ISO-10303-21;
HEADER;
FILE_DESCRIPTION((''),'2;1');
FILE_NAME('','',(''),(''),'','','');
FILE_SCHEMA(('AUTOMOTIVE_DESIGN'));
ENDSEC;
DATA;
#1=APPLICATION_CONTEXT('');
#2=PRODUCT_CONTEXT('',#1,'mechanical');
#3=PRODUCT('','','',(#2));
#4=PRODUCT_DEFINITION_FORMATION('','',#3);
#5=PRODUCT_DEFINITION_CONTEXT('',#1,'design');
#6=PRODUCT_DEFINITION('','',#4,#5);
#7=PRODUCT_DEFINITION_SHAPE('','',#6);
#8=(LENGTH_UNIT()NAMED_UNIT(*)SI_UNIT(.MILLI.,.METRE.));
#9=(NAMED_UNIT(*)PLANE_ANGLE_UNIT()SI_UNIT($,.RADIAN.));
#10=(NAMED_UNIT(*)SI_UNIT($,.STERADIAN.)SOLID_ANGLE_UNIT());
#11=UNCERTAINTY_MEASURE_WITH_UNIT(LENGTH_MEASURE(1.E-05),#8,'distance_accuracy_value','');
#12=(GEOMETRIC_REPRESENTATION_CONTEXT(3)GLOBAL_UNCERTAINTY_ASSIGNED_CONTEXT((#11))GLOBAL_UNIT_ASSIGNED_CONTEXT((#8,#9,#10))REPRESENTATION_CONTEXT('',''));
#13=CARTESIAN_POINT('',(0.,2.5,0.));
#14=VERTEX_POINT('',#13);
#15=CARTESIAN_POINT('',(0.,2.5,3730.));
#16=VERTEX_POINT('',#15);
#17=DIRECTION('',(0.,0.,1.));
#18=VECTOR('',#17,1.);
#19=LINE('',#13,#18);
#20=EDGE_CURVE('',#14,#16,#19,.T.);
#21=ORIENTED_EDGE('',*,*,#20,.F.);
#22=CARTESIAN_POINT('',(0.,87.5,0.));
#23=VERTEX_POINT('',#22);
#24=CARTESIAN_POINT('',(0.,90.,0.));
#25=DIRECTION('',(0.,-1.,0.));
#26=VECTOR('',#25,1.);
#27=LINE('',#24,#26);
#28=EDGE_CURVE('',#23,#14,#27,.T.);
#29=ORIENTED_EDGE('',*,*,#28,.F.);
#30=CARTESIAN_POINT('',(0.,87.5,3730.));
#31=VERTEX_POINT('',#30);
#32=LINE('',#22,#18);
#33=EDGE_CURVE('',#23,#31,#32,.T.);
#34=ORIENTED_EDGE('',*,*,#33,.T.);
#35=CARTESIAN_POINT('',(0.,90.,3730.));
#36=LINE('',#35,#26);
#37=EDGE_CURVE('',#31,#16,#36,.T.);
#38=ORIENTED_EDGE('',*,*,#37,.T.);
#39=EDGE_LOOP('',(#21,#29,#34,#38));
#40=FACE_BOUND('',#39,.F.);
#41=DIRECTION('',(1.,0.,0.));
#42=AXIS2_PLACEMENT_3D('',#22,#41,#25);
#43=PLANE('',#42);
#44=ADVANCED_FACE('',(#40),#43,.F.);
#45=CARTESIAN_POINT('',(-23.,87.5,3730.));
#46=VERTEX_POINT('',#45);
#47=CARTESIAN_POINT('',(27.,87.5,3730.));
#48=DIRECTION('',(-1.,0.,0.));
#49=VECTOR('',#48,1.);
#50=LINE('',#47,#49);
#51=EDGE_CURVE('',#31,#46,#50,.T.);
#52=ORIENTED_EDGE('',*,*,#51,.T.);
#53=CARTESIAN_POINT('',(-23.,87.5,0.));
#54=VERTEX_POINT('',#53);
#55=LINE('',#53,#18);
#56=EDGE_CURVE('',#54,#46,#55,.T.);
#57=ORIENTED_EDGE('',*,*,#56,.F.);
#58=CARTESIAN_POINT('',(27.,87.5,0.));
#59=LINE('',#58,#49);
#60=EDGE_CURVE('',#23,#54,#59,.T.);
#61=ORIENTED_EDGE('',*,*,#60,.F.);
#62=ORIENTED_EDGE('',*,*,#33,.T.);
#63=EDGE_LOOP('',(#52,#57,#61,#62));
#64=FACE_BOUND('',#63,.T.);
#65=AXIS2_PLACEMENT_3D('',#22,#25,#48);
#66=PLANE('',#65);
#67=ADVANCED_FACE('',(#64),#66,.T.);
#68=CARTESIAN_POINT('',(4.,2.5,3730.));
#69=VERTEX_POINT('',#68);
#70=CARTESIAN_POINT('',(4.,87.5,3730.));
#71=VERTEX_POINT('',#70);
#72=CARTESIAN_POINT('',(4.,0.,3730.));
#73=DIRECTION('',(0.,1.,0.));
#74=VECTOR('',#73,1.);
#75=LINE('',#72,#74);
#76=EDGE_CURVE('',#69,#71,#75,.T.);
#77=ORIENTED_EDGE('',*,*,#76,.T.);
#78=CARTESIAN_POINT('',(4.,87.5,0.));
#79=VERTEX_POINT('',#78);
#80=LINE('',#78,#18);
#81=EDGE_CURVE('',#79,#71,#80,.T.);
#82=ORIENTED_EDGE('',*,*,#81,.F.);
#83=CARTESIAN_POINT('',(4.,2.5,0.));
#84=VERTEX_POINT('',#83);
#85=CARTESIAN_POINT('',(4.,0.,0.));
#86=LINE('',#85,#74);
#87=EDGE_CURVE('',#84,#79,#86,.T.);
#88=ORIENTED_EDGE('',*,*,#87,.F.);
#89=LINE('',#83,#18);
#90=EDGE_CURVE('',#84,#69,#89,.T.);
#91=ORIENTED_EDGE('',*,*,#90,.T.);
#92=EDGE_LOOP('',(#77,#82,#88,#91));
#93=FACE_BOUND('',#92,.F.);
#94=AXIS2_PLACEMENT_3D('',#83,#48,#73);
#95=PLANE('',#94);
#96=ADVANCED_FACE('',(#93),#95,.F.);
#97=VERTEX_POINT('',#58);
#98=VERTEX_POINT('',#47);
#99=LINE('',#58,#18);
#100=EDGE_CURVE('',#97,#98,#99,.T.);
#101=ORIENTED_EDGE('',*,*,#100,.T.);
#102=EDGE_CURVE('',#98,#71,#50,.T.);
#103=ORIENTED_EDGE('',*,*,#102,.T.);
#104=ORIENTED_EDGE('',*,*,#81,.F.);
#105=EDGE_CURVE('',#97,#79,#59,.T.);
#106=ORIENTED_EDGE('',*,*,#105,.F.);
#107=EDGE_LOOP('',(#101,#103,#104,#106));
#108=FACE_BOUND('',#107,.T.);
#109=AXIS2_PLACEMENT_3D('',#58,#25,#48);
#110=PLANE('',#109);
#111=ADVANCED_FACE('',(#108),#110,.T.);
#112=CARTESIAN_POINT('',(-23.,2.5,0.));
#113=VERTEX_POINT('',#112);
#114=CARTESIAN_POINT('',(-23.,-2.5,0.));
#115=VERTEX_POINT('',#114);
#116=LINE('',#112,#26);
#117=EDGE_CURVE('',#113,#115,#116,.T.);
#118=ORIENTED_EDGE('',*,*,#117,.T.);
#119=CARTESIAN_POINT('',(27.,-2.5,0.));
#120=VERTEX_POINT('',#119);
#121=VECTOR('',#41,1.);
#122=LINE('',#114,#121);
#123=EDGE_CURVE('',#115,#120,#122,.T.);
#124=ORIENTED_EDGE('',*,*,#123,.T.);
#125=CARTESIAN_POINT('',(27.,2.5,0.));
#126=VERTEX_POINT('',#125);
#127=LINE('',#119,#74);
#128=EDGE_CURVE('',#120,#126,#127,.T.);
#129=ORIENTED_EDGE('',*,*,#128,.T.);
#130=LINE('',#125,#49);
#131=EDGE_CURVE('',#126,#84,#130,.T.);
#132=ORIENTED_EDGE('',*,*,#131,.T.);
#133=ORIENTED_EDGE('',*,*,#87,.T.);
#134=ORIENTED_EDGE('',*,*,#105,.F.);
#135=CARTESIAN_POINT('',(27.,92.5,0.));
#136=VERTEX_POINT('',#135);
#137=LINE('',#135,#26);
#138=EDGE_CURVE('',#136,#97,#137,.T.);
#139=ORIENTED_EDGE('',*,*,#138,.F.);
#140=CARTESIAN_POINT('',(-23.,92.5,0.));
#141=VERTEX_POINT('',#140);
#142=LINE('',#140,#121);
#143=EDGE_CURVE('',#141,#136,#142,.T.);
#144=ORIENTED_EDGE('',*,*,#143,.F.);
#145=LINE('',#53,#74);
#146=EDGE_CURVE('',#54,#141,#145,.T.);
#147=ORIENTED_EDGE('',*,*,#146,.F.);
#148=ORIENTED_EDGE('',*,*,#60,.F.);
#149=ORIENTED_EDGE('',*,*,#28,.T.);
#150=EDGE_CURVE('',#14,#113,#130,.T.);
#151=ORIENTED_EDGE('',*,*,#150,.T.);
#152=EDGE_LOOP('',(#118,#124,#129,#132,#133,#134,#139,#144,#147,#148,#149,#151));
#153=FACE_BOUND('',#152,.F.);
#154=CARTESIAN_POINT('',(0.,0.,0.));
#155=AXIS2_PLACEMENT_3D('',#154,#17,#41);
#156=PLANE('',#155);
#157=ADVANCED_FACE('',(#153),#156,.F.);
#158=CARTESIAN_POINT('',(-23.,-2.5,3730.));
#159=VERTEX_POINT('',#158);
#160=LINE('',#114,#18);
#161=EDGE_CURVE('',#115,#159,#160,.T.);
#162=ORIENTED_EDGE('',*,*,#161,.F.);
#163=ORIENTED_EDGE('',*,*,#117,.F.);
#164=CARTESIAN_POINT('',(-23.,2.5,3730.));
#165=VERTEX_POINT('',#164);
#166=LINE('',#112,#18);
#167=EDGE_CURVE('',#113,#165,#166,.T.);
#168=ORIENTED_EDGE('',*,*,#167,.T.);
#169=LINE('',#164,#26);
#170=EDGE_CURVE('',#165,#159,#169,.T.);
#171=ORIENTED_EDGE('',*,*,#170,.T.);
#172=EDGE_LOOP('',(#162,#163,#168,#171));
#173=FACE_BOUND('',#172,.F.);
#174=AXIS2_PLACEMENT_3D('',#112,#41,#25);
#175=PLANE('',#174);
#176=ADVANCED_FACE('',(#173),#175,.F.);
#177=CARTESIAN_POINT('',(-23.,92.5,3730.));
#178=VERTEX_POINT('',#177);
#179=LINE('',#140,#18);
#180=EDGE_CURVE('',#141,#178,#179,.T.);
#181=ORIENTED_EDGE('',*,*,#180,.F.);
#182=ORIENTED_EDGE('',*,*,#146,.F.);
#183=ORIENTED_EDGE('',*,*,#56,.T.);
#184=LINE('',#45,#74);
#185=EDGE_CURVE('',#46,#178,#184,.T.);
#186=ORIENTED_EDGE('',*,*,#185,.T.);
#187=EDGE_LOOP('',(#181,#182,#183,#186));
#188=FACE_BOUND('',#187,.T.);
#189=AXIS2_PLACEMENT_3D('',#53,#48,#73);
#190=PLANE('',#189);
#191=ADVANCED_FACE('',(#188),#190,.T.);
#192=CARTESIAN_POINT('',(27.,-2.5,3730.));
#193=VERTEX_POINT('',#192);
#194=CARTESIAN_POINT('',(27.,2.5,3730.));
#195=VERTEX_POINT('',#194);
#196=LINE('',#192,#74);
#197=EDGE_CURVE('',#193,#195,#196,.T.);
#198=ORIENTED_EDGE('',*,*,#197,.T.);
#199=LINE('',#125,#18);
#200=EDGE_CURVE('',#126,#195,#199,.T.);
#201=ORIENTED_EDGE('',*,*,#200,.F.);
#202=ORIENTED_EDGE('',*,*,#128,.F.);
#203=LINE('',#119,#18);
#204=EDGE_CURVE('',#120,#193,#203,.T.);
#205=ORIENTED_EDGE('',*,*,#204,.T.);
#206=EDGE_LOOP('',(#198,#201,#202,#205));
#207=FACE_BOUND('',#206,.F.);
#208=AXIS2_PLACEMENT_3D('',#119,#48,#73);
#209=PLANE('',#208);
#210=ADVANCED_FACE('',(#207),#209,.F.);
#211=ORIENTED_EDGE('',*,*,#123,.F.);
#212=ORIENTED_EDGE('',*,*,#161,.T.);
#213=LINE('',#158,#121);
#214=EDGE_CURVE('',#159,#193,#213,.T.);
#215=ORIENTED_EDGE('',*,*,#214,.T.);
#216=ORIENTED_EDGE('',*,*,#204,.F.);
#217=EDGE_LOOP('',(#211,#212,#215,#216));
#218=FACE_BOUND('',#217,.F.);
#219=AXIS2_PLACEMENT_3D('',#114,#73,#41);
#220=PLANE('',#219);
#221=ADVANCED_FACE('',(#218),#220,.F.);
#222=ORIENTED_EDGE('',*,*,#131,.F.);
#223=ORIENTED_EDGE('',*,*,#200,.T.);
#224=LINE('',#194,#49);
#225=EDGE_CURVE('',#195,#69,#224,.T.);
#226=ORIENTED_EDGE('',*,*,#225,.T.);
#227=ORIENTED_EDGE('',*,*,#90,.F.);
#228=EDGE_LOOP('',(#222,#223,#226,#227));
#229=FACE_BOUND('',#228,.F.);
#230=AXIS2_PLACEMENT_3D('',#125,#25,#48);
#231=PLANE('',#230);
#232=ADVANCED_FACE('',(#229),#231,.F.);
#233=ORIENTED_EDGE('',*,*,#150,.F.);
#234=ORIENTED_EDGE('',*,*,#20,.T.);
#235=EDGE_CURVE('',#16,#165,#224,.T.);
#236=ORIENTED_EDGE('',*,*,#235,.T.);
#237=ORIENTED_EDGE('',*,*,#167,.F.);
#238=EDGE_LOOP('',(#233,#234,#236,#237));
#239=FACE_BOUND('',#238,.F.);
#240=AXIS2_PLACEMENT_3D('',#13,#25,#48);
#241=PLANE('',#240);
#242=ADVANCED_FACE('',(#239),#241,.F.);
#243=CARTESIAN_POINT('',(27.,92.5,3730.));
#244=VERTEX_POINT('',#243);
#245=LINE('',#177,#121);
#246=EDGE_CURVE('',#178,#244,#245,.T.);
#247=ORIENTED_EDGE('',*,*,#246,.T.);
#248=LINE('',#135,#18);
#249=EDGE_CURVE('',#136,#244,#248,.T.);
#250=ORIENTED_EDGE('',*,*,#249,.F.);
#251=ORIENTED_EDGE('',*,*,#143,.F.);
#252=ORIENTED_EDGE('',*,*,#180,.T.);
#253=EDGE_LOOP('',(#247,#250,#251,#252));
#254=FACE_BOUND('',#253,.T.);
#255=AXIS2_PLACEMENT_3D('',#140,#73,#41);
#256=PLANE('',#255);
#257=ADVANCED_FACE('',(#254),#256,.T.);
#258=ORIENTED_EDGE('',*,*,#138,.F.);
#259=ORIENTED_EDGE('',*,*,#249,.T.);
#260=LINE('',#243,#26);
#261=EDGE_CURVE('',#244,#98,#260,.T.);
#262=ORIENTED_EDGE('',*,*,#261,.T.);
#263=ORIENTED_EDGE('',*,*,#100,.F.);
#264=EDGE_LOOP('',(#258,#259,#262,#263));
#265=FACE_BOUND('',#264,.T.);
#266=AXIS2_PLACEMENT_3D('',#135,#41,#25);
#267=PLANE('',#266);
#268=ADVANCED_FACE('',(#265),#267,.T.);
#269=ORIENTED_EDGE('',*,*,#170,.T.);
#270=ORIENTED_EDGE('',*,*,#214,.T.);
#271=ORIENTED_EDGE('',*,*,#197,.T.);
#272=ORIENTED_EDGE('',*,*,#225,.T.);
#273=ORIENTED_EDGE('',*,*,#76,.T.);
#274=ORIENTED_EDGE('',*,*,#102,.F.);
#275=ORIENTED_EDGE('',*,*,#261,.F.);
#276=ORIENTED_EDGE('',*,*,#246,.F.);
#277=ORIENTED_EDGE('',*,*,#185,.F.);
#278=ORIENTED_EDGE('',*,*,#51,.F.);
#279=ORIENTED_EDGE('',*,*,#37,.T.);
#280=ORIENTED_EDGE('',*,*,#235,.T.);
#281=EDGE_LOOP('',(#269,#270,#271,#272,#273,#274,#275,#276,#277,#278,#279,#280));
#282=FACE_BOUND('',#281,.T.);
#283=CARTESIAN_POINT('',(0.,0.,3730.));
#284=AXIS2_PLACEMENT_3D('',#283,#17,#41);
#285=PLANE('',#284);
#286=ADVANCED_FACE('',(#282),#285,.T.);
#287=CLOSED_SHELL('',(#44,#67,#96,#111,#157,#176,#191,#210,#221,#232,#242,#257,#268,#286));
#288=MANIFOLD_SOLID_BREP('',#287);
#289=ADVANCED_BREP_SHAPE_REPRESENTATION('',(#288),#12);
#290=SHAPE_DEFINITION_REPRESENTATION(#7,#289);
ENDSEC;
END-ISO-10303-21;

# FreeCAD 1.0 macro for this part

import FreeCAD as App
import Part
import Sketcher
Q = App.Units.Quantity


def add_polygon(sketch, points):
    """Adds a closed chain of lines whose ends are joined by coincident constraints."""
    first, n = sketch.GeometryCount, len(points)
    for a, b in zip(points, points[1:] + points[:1]):
        sketch.addGeometry(Part.LineSegment(App.Vector(*a, 0), App.Vector(*b, 0)), False)
    for i in range(n):
        sketch.addConstraint(Sketcher.Constraint("Coincident", first + i, 2, first + (i + 1) % n, 1))

doc = App.newDocument("Part")
body = doc.addObject("PartDesign::Body", "Body")

sketch1 = body.newObject("Sketcher::SketchObject", "Sketch")
sketch1.AttachmentSupport = (doc.getObject("XY_Plane"), [""])
sketch1.MapMode = "FlatFace"
add_polygon(sketch1, [(-23, 2), (-23, -2), (27, -2), (27, 2), (4, 2), (4, 88), (27, 88), (27, 92), (-23, 92), (-23, 88), (0, 88), (0, 2)])
sketch1.addConstraint([
    Sketcher.Constraint("Vertical", 0),
    Sketcher.Constraint("Horizontal", 1),
    Sketcher.Constraint("Vertical", 2),
    Sketcher.Constraint("Horizontal", 3),
    Sketcher.Constraint("Vertical", 4),
    Sketcher.Constraint("Horizontal", 5),
    Sketcher.Constraint("Vertical", 6),
    Sketcher.Constraint("Horizontal", 7),
    Sketcher.Constraint("Vertical", 8),
    Sketcher.Constraint("Horizontal", 9),
    Sketcher.Constraint("Vertical", 10),
    Sketcher.Constraint("Horizontal", 11),
    Sketcher.Constraint("PointOnObject", 9, 2, -2),
    Sketcher.Constraint("Horizontal", 5, 2, 8, 2),
    Sketcher.Constraint("Horizontal", 3, 2, 10, 2),
    Sketcher.Constraint("Vertical", 2, 2, 5, 2),
    Sketcher.Constraint("Vertical", 0, 2, 7, 2),
    Sketcher.Constraint("Equal", 5, 9),
    Sketcher.Constraint("Equal", 2, 6),
    Sketcher.Constraint("DistanceX", 1, 1, 1, 2, Q("50 mm")),
    Sketcher.Constraint("DistanceY", 0, 2, 0, 1, Q("5 mm")),
    Sketcher.Constraint("DistanceX", -1, 1, 3, 2, Q("4 mm")),
    Sketcher.Constraint("DistanceY", 1, 2, 4, 2, Q("90 mm")),
    Sketcher.Constraint("DistanceY", 0, 2, -1, 1, Q("2.5 mm")),
])
pad1 = body.newObject("PartDesign::Pad", "Pad")
pad1.Profile = sketch1
pad1.Length = 3730

doc.recompute()
